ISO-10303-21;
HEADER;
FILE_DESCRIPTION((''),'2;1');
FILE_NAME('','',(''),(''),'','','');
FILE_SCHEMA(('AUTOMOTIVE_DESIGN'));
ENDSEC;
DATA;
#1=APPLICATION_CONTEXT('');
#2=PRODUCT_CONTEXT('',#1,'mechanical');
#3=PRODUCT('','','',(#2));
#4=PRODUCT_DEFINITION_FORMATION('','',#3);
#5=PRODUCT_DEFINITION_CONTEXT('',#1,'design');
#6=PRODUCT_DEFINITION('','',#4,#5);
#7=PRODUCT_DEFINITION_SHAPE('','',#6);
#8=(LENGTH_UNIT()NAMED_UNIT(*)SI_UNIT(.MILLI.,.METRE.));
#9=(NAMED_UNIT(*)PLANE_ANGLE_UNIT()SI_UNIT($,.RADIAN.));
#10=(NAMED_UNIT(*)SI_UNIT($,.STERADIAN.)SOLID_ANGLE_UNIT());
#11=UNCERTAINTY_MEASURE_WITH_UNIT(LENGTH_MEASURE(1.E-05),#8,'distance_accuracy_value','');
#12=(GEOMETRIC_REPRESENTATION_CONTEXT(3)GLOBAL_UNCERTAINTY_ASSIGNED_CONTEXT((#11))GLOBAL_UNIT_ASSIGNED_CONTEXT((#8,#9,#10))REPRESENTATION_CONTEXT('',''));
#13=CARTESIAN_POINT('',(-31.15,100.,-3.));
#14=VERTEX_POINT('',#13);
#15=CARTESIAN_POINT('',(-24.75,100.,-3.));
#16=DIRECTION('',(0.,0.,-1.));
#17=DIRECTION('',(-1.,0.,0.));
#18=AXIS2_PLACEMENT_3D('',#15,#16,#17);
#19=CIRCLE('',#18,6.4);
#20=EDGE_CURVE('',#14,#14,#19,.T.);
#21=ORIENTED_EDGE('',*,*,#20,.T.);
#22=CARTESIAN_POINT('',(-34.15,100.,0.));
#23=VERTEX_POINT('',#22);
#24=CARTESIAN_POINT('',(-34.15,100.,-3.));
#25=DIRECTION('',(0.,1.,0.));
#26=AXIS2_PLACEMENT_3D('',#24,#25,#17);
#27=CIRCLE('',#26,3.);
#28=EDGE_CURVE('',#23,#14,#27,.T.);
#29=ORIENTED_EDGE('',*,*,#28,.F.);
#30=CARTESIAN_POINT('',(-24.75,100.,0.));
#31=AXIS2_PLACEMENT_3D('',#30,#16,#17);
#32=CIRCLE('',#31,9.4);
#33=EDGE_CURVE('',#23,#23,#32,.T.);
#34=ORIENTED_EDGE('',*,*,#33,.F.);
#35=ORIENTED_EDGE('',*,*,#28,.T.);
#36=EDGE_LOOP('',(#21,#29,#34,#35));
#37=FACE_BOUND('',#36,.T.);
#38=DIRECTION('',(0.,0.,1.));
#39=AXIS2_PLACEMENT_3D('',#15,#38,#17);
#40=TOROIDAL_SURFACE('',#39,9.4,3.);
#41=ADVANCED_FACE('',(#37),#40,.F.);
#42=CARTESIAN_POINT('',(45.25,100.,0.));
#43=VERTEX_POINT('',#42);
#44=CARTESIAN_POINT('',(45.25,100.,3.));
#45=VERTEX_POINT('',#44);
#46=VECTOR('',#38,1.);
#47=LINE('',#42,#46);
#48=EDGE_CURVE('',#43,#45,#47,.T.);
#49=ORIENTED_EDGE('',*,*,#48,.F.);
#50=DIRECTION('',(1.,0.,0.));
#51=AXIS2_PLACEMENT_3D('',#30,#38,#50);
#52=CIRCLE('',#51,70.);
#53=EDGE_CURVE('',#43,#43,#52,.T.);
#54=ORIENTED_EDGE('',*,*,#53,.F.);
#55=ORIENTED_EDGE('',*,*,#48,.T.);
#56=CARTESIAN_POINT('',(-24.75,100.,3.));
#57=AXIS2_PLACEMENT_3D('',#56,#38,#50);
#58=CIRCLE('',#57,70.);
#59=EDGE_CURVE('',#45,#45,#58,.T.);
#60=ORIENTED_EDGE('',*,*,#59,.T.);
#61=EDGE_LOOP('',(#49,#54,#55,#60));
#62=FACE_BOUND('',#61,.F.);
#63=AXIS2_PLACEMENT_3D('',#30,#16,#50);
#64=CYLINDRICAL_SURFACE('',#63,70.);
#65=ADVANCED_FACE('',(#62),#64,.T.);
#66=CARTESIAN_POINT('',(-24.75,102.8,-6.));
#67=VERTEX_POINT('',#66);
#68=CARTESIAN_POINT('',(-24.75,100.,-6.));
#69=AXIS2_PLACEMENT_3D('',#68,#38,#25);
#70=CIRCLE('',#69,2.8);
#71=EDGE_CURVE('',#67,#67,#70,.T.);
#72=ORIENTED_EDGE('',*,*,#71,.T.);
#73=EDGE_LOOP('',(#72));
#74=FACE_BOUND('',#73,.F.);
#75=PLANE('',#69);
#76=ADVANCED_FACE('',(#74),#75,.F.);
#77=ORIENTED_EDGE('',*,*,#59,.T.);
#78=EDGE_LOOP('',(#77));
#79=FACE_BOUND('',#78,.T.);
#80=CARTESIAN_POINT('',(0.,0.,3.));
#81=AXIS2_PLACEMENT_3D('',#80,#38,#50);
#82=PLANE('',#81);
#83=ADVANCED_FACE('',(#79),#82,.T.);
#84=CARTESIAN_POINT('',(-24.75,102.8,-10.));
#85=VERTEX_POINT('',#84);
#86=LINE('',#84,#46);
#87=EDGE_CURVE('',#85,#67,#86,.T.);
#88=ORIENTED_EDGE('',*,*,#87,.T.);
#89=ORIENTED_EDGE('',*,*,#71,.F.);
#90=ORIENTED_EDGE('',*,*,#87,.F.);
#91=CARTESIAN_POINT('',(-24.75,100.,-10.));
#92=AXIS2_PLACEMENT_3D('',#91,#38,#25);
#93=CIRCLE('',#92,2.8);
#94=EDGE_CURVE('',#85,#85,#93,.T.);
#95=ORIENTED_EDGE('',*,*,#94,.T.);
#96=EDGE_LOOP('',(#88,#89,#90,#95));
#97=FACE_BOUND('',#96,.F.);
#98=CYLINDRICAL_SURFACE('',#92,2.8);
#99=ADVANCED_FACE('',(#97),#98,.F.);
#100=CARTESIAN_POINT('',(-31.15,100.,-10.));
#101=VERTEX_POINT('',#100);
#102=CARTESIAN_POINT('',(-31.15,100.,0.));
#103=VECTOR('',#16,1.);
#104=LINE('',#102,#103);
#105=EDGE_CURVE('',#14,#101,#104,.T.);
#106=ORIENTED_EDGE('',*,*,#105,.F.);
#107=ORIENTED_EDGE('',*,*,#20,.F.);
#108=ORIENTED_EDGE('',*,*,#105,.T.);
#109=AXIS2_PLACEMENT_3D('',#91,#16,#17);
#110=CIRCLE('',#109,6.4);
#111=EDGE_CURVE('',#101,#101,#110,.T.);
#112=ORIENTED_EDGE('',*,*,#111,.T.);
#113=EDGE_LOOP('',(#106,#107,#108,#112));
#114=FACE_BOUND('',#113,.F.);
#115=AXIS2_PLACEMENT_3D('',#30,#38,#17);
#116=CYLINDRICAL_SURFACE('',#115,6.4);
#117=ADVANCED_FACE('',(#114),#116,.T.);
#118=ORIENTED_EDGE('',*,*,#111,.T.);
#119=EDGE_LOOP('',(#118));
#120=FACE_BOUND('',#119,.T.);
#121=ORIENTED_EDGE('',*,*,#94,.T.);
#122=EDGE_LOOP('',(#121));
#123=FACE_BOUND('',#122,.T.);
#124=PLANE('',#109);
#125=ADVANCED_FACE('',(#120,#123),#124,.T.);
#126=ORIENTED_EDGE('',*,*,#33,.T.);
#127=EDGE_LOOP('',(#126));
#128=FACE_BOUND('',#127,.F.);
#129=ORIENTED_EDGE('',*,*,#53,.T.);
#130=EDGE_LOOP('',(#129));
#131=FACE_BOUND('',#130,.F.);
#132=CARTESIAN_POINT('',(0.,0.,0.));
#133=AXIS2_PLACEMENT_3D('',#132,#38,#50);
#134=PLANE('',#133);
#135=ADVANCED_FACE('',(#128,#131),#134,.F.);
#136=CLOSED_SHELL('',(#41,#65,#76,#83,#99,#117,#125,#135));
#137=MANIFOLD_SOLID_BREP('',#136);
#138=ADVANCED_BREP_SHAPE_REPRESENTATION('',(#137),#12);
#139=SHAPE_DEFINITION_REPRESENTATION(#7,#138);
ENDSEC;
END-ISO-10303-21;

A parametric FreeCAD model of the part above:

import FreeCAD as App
import Part
import Sketcher

V = App.Vector


def edges_at(feature, points):
    """Names of the edges that pass closest to the given points."""
    edges = feature.Shape.Edges
    near = lambda p: min(range(len(edges)), key=lambda i: edges[i].distToShape(Part.Vertex(*p))[0])
    return sorted({f"Edge{near(p) + 1}" for p in points})

doc = App.newDocument("Part")
params = doc.addObject("Spreadsheet::Sheet", "Params")
for row, (alias, value) in enumerate([
    ("sketch1_diameter", "140 mm"),
    ("pad1_length", "3 mm"),
    ("sketch2_diameter", "12.8 mm"),
    ("pad2_length", "10 mm"),
    ("sketch3_diameter", "5.6 mm"),
    ("hole_diameter", "5.6 mm"),
    ("hole_depth", "4 mm"),
    ("fillet_radius", "3 mm"),
], start=1):
    params.set(f"A{row}", alias)
    params.set(f"B{row}", "=" + value)
    params.setAlias(f"B{row}", alias)

body = doc.addObject("PartDesign::Body", "Body")

# Sketch on XY plane
sketch1 = doc.addObject("Sketcher::SketchObject", "Sketch")
body.addObject(sketch1)
sketch1.AttachmentSupport = (doc.XY_Plane, [""])
sketch1.MapMode = "FlatFace"
sketch1.addGeometry(Part.Circle(V(-25, 100, 0), V(0, 0, 1), 70), False)
sketch1.addConstraint([
    Sketcher.Constraint("Diameter", 0, 140.0),
    Sketcher.Constraint("DistanceY", -1, 1, 0, 3, 100.0),
    Sketcher.Constraint("DistanceX", 0, 3, -1, 1, 24.75),
])
sketch1.setExpression("Constraints[0]", "Params.sketch1_diameter")
pad1 = doc.addObject("PartDesign::Pad", "Pad")
body.addObject(pad1)
pad1.Profile = sketch1
pad1.setExpression("Length", "Params.pad1_length")

# Sketch on XY plane
sketch2 = doc.addObject("Sketcher::SketchObject", "Sketch001")
body.addObject(sketch2)
sketch2.AttachmentSupport = (doc.XY_Plane, [""])
sketch2.MapMode = "FlatFace"
sketch2.addGeometry(Part.Circle(V(-25, 100, 0), V(0, 0, 1), 6), False)
sketch2.addConstraint([
    Sketcher.Constraint("Diameter", 0, 12.8),
    Sketcher.Constraint("DistanceY", -1, 1, 0, 3, 100.0),
    Sketcher.Constraint("DistanceX", 0, 3, -1, 1, 24.75),
])
sketch2.setExpression("Constraints[0]", "Params.sketch2_diameter")
pad2 = doc.addObject("PartDesign::Pad", "Pad001")
body.addObject(pad2)
pad2.Profile = sketch2
pad2.setExpression("Length", "Params.pad2_length")
pad2.Reversed = True

# Sketch on XY plane
sketch3 = doc.addObject("Sketcher::SketchObject", "Sketch002")
body.addObject(sketch3)
sketch3.AttachmentSupport = (doc.XY_Plane, [""])
sketch3.MapMode = "FlatFace"
sketch3.AttachmentOffset = App.Placement(V(0, 0, -10), App.Rotation())
sketch3.addGeometry(Part.Circle(V(-24.8, 100, 0), V(0, 0, 1), 2.8), False)
sketch3.addConstraint([
    Sketcher.Constraint("Diameter", 0, 5.6),
    Sketcher.Constraint("DistanceY", -1, 1, 0, 3, 100.0),
    Sketcher.Constraint("DistanceX", 0, 3, -1, 1, 24.75),
])
sketch3.setExpression("Constraints[0]", "Params.sketch3_diameter")
doc.recompute()
hole = doc.addObject("PartDesign::Hole", "Hole")
body.addObject(hole)
hole.Profile = sketch3
hole.ThreadType = "None"
hole.setExpression("Diameter", "Params.hole_diameter")
hole.DepthType = "Dimension"
hole.setExpression("Depth", "Params.hole_depth")
hole.DrillPoint = "Flat"
hole.Reversed = True
doc.recompute()

fillet = doc.addObject("PartDesign::Fillet", "Fillet")
body.addObject(fillet)
fillet.Base = (hole, edges_at(hole, [(-18.35, 100, 0)]))
fillet.setExpression("Radius", "Params.fillet_radius")

doc.recompute()
